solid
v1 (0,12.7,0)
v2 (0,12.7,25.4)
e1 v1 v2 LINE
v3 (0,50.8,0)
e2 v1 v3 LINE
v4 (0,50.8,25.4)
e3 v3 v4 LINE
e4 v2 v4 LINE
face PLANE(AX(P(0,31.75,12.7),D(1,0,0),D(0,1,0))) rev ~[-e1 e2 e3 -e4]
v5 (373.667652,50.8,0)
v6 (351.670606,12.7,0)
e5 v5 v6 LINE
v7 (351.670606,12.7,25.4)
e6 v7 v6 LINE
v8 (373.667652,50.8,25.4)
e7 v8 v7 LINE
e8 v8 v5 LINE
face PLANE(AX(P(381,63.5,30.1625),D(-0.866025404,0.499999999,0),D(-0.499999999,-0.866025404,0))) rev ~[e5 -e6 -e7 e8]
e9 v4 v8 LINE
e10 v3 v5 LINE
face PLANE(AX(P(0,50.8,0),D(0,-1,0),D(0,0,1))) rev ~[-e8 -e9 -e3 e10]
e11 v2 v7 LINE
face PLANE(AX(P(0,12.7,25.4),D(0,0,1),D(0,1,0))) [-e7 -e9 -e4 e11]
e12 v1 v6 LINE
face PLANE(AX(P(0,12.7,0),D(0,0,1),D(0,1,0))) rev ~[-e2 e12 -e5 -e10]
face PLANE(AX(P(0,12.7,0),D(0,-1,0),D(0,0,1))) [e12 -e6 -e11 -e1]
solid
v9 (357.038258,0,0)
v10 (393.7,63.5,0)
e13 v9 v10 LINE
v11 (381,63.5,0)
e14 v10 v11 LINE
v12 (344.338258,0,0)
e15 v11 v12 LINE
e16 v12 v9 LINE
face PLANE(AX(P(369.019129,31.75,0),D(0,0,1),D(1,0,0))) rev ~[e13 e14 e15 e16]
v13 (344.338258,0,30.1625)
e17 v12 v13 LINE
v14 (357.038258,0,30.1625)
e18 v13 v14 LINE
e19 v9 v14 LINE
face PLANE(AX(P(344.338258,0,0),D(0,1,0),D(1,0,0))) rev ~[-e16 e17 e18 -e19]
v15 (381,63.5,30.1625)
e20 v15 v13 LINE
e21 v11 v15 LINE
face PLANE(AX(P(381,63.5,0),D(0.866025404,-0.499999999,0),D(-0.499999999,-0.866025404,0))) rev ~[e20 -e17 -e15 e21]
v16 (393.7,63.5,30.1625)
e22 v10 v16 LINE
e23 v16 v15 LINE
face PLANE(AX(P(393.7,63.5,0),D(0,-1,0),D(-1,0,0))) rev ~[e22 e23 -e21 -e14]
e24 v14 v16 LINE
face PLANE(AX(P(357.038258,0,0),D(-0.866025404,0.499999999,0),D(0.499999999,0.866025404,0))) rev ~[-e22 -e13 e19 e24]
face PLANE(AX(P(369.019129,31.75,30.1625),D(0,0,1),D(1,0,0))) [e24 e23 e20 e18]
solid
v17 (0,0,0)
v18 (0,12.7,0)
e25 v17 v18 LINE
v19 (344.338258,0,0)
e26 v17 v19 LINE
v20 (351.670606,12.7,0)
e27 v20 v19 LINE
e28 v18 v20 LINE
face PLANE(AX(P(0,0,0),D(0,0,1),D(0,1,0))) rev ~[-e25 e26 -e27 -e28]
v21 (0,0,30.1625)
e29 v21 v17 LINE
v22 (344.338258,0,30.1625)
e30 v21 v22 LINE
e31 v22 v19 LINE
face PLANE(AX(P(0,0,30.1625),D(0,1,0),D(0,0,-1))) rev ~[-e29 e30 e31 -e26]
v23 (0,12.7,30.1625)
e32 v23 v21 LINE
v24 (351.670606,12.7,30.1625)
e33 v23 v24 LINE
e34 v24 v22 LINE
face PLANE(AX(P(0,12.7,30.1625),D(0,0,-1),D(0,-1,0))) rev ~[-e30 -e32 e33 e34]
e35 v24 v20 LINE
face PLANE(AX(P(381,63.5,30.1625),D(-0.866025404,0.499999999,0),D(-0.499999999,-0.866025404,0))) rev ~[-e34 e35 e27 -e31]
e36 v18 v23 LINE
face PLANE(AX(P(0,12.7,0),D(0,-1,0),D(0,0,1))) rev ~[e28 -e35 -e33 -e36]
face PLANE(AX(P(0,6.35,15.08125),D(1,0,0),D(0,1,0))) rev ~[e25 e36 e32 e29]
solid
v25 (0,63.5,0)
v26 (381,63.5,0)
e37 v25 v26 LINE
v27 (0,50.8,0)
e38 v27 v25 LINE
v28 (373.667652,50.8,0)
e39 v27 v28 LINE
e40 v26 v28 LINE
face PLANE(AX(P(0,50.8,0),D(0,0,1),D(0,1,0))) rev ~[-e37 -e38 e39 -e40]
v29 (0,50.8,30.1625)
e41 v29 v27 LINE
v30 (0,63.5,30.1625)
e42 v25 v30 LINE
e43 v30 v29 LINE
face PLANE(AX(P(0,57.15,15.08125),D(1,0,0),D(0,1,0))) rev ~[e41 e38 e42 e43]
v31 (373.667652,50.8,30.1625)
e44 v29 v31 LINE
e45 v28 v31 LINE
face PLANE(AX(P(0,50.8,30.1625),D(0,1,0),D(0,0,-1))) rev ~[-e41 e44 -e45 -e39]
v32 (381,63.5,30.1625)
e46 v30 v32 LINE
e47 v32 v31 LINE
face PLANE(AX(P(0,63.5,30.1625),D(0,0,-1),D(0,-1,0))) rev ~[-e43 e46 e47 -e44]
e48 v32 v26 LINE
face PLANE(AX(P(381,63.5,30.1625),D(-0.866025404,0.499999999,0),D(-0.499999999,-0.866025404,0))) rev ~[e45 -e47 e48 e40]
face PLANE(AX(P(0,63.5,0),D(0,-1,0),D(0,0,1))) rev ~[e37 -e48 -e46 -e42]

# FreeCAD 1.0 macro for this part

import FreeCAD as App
import Part
import Sketcher
from FreeCAD import Vector
Q = App.Units.Quantity


def add_polygon(sketch, points):
    """Adds a closed chain of lines whose ends are joined by coincident constraints."""
    first, n = sketch.GeometryCount, len(points)
    for a, b in zip(points, points[1:] + points[:1]):
        sketch.addGeometry(Part.LineSegment(App.Vector(*a, 0), App.Vector(*b, 0)), False)
    for i in range(n):
        sketch.addConstraint(Sketcher.Constraint("Coincident", first + i, 2, first + (i + 1) % n, 1))

doc = App.newDocument("Part")
body = doc.addObject("PartDesign::Body", "Body")
body.AllowCompound = True

sketch1 = doc.addObject("Sketcher::SketchObject", "Sketch")
body.addObject(sketch1)
sketch1.AttachmentSupport = (doc.YZ_Plane, [""])
sketch1.MapMode = "FlatFace"
add_polygon(sketch1, [(0, 30.1625), (0, 0), (12.7, 0), (12.7, 30.1625)])
add_polygon(sketch1, [(50.8, 0), (63.5, 0), (63.5, 30.1625), (50.8, 30.1625)])
sketch1.addConstraint([
    Sketcher.Constraint("Vertical", 0),
    Sketcher.Constraint("Horizontal", 1),
    Sketcher.Constraint("Vertical", 2),
    Sketcher.Constraint("Horizontal", 3),
    Sketcher.Constraint("Horizontal", 4),
    Sketcher.Constraint("Vertical", 5),
    Sketcher.Constraint("Horizontal", 6),
    Sketcher.Constraint("Vertical", 7),
    Sketcher.Constraint("Coincident", 0, 2, -1, 1),
    Sketcher.Constraint("PointOnObject", 4, 2, -1),
    Sketcher.Constraint("Horizontal", 3, 2, 5, 2),
    Sketcher.Constraint("Equal", 3, 4),
    Sketcher.Constraint("DistanceX", 1, 1, 1, 2, Q("0.5 in")),
    Sketcher.Constraint("DistanceX", -1, 1, 6, 2, Q("2 in")),
    Sketcher.Constraint("DistanceY", 0, 2, 0, 1, Q("1.1875 in")),
])
pad1 = doc.addObject("PartDesign::Pad", "Pad")
body.addObject(pad1)
pad1.Profile = sketch1
pad1.Length = Q("16 in")
body2 = doc.addObject("PartDesign::Body", "Body001")

sketch2 = doc.addObject("Sketcher::SketchObject", "Sketch001")
body2.addObject(sketch2)
sketch2.AttachmentSupport = (doc.getObject("YZ_Plane001"), [""])
sketch2.MapMode = "FlatFace"
add_polygon(sketch2, [(12.7, 25.4), (12.7, 0), (50.8, 0), (50.8, 25.4)])
sketch2.addConstraint([
    Sketcher.Constraint("Vertical", 0),
    Sketcher.Constraint("Horizontal", 1),
    Sketcher.Constraint("Vertical", 2),
    Sketcher.Constraint("Horizontal", 3),
    Sketcher.Constraint("PointOnObject", 0, 2, -1),
    Sketcher.Constraint("DistanceY", 0, 2, 0, 1, Q("1 in")),
    Sketcher.Constraint("DistanceX", 1, 1, 1, 2, Q("1.5 in")),
    Sketcher.Constraint("DistanceX", -1, 1, 1, 2, Q("2 in")),
])
pad2 = doc.addObject("PartDesign::Pad", "Pad001")
body2.addObject(pad2)
pad2.Profile = sketch2
pad2.Length = Q("16 in")
body3 = doc.addObject("PartDesign::Body", "Body002")

sketch3 = doc.addObject("Sketcher::SketchObject", "Sketch002")
body3.addObject(sketch3)
sketch3.AttachmentSupport = (doc.getObject("XY_Plane002"), [""])
sketch3.MapMode = "FlatFace"
sketch3.AttachmentOffset = App.Placement(Vector(0, 0, 1.1875 * 25.4), App.Rotation())
add_polygon(sketch3, [(406.4, 0), (406.4, 63.5), (381, 63.5), (344.338258, 0)])
sketch3.addConstraint([
    Sketcher.Constraint("Vertical", 0),
    Sketcher.Constraint("Horizontal", 1),
    Sketcher.Constraint("Horizontal", 3),
    Sketcher.Constraint("PointOnObject", 2, 2, -1),
    Sketcher.Constraint("DistanceX", 1, 2, 1, 1, Q("1 in")),
    Sketcher.Constraint("DistanceY", 0, 1, 0, 2, Q("2.5 in")),
    Sketcher.Constraint("DistanceX", -1, 1, 0, 2, Q("16 in")),
    Sketcher.Constraint("Angle", 2, Q("-120 deg")),
])
pad3 = doc.addObject("PartDesign::Pad", "Pad002")
body3.addObject(pad3)
pad3.Profile = sketch3
pad3.Length = 30.1635
pad3.Reversed = True
body.AllowCompound = True
doc.recompute()

body4 = doc.addObject("PartDesign::Body", "Body003")
body4.BaseFeature = body3
boolean = doc.addObject("PartDesign::Boolean", "Boolean")
body.addObject(boolean)
boolean.Type = "Cut"
boolean.addObjects([body4])
doc.recompute()

boolean2 = doc.addObject("PartDesign::Boolean", "Boolean001")
body2.addObject(boolean2)
boolean2.Type = "Cut"
boolean2.addObjects([body3])
body5 = doc.addObject("PartDesign::Body", "Body004")

sketch4 = doc.addObject("Sketcher::SketchObject", "Sketch003")
body5.addObject(sketch4)
sketch4.AttachmentSupport = (doc.getObject("XY_Plane004"), [""])
sketch4.MapMode = "FlatFace"
add_polygon(sketch4, [(393.7, 63.5), (381, 63.5), (344.338258, 0), (357.038258, 0)])
sketch4.addConstraint([
    Sketcher.Constraint("Horizontal", 0),
    Sketcher.Constraint("Horizontal", 2),
    Sketcher.Constraint("PointOnObject", 1, 2, -1),
    Sketcher.Constraint("Parallel", 1, 3),
    Sketcher.Constraint("DistanceX", 0, 2, 0, 1, Q("0.5 in")),
    Sketcher.Constraint("DistanceX", -1, 1, 0, 2, Q("15 in")),
    Sketcher.Constraint("Angle", 1, Q("-120 deg")),
    Sketcher.Constraint("DistanceY", -1, 1, 0, 2, Q("2.5 in")),
])
pad4 = doc.addObject("PartDesign::Pad", "Pad003")
body5.addObject(pad4)
pad4.Profile = sketch4
pad4.Length = Q("1.1875 in")

doc.recompute()
